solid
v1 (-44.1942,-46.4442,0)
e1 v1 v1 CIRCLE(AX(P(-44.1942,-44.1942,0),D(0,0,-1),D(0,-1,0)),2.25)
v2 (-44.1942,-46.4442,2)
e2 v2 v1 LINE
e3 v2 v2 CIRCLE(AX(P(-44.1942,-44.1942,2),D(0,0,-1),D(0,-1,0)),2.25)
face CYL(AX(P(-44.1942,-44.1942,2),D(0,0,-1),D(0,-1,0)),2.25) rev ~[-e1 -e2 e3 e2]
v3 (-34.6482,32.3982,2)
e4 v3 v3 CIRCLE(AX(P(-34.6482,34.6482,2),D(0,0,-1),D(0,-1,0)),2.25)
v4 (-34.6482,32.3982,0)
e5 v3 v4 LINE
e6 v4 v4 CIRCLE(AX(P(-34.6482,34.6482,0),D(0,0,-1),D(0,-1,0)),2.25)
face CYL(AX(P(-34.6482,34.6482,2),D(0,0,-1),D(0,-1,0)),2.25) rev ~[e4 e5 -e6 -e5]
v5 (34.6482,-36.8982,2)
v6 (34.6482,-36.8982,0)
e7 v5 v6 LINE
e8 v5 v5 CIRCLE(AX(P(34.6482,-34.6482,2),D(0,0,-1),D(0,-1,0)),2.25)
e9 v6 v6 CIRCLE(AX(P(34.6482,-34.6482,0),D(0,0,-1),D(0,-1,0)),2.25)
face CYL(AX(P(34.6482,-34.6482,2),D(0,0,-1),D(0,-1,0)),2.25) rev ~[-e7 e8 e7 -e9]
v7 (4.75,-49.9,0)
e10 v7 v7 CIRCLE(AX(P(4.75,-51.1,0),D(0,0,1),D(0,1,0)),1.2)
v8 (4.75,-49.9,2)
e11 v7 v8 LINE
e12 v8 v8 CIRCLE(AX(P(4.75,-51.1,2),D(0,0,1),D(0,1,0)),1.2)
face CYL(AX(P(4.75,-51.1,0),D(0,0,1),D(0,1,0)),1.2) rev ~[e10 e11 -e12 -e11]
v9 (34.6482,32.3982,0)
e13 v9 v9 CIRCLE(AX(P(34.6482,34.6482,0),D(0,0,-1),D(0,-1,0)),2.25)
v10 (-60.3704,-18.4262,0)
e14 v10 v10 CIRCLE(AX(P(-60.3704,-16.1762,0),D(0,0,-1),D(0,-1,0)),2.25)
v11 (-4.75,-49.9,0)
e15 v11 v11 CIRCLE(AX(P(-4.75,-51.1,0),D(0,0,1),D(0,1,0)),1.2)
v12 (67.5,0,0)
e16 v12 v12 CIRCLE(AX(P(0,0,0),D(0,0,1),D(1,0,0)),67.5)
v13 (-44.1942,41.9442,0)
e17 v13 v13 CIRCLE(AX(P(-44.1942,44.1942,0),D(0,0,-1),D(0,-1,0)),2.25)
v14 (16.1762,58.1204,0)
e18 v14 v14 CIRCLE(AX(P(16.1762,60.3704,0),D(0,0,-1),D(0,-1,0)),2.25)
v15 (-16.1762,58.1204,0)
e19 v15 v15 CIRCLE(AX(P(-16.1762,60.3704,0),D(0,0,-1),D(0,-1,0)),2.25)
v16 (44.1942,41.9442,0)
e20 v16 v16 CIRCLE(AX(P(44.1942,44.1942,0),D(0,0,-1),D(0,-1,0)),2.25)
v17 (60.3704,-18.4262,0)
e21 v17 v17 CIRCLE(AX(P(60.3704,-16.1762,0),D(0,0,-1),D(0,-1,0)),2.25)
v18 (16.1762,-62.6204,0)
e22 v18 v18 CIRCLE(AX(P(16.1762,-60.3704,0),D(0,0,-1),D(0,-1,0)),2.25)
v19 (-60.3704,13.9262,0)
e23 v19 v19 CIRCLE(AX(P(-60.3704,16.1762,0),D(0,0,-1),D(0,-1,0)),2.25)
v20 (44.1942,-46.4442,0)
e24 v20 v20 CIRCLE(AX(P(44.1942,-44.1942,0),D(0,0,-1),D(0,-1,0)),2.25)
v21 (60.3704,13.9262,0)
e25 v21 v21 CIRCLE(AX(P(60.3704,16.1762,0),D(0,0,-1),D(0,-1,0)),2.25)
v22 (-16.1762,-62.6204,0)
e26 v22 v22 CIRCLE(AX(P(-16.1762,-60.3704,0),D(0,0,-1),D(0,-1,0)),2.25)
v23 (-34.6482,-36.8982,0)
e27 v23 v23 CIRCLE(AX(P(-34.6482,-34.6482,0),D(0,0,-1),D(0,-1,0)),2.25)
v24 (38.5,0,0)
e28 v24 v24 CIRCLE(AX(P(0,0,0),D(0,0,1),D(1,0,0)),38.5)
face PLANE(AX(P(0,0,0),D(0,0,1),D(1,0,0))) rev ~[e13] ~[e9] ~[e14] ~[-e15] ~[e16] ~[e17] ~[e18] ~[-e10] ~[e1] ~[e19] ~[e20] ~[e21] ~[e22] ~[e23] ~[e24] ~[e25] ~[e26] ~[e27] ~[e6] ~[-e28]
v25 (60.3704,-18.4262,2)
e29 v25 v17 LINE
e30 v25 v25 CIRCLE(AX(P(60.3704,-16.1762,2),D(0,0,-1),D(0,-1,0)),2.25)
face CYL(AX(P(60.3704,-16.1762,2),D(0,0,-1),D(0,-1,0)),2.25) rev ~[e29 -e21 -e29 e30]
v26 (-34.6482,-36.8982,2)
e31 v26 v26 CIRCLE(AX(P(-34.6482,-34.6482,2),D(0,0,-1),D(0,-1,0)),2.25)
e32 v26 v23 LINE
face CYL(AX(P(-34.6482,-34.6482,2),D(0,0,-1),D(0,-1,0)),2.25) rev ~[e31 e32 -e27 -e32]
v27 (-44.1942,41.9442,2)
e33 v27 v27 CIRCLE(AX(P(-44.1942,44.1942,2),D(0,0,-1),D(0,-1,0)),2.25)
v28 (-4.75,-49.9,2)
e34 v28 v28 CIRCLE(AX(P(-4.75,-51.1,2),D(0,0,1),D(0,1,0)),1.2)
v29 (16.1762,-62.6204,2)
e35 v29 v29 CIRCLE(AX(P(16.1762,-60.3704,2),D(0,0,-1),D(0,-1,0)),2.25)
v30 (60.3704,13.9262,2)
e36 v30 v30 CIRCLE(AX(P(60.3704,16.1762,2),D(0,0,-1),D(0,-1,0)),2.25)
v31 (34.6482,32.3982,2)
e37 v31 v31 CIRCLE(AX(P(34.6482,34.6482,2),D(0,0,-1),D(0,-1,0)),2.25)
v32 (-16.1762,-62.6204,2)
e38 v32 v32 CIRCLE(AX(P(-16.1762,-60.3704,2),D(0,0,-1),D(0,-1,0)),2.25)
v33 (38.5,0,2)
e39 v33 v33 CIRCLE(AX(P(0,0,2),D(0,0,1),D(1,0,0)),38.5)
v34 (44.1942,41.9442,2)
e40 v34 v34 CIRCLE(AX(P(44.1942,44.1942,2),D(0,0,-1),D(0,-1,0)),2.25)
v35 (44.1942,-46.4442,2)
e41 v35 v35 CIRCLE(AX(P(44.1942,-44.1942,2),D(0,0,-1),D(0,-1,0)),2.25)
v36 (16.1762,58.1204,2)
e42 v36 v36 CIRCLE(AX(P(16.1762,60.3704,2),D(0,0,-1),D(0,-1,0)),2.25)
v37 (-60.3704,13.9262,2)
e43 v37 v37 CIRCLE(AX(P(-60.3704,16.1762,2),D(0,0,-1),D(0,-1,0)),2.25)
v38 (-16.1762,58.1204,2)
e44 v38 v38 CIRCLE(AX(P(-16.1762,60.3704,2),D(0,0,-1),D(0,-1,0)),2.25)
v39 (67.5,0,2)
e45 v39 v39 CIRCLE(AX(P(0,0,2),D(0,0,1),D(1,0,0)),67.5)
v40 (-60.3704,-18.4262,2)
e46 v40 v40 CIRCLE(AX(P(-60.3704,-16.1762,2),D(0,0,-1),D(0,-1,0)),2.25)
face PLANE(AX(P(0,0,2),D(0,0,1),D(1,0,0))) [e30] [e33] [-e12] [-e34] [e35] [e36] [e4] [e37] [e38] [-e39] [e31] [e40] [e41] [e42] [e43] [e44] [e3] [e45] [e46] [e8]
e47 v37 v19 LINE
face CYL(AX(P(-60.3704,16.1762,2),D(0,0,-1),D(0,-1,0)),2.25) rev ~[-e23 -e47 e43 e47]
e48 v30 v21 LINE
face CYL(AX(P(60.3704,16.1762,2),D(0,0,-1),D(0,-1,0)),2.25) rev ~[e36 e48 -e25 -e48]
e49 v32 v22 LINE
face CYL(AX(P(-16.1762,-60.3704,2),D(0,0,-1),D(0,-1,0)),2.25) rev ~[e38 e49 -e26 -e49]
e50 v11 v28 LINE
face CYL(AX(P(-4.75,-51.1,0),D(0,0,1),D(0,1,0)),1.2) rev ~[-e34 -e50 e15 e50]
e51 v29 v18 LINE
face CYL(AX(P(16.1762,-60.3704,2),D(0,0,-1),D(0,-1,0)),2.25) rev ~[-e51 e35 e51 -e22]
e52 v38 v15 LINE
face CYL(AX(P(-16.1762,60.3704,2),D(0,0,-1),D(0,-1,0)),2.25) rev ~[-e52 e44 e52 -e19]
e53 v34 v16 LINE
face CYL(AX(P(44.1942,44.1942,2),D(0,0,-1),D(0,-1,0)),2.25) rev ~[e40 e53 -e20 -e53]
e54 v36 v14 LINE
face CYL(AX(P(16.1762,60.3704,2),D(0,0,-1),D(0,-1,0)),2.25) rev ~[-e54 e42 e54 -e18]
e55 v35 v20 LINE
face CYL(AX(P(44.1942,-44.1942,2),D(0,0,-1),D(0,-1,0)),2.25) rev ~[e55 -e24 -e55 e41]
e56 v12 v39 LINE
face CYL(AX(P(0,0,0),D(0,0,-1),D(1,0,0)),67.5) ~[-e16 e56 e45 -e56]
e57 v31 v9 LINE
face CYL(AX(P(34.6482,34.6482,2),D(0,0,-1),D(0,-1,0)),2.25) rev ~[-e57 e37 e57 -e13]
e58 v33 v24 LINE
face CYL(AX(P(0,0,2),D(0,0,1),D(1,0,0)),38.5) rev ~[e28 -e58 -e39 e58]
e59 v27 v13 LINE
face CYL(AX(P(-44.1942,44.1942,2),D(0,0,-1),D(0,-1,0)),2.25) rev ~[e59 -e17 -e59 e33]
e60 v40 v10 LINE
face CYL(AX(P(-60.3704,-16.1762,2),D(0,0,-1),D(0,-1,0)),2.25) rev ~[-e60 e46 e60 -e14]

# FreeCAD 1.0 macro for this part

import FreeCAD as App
import Part
import Sketcher
from FreeCAD import Vector
Q = App.Units.Quantity

doc = App.newDocument("Part")
body = doc.addObject("PartDesign::Body", "Body")

# Sketch on XY plane
sketch1 = body.newObject("Sketcher::SketchObject", "Sketch")
sketch1.AttachmentSupport = (doc.getObject("XY_Plane"), [""])
sketch1.MapMode = "FlatFace"
sketch1.addGeometry(Part.Circle(Vector(0, 0, 0), Vector(0, 0, 1), 67.5), False)
sketch1.addConstraint([
    Sketcher.Constraint("Coincident", 0, 3, -1, 1),
    Sketcher.Constraint("Diameter", 0, Q("135 mm")),
])
pad1 = body.newObject("PartDesign::Pad", "Pad")
pad1.Profile = sketch1
pad1.Length = 2

# Sketch on XY plane
sketch2 = body.newObject("Sketcher::SketchObject", "Sketch001")
sketch2.AttachmentSupport = (doc.getObject("XY_Plane"), [""])
sketch2.MapMode = "FlatFace"
sketch2.AttachmentOffset = App.Placement(Vector(0, 0, 2), App.Rotation())
sketch2.addGeometry(Part.Circle(Vector(0, 0, 0), Vector(0, 0, 1), 38.5), False)
sketch2.addConstraint([
    Sketcher.Constraint("Coincident", 0, 3, -1, 1),
    Sketcher.Constraint("Diameter", 0, Q("77 mm")),
])
pocket1 = body.newObject("PartDesign::Pocket", "Pocket")
pocket1.Profile = sketch2
pocket1.Type = "ThroughAll"

# Sketch on XY plane
sketch3 = body.newObject("Sketcher::SketchObject", "Sketch002")
sketch3.AttachmentSupport = (doc.getObject("XY_Plane"), [""])
sketch3.MapMode = "FlatFace"
sketch3.AttachmentOffset = App.Placement(Vector(0, 0, 2), App.Rotation())
sketch3.addGeometry([
    Part.Circle(Vector(16.1762, 60.3704, 0), Vector(0, 0, 1), 2.25),  # 0
    Part.Circle(Vector(-16.1762, 60.3704, 0), Vector(0, 0, 1), 2.25),  # 1
    Part.Circle(Vector(-44.1942, 44.1942, 0), Vector(0, 0, 1), 2.25),  # 2
    Part.Circle(Vector(-60.3704, 16.1762, 0), Vector(0, 0, 1), 2.25),  # 3
    Part.Circle(Vector(-60.3704, -16.1762, 0), Vector(0, 0, 1), 2.25),  # 4
    Part.Circle(Vector(-44.1942, -44.1942, 0), Vector(0, 0, 1), 2.25),  # 5
    Part.Circle(Vector(-16.1762, -60.3704, 0), Vector(0, 0, 1), 2.25),  # 6
    Part.Circle(Vector(16.1762, -60.3704, 0), Vector(0, 0, 1), 2.25),  # 7
    Part.Circle(Vector(44.1942, -44.1942, 0), Vector(0, 0, 1), 2.25),  # 8
    Part.Circle(Vector(60.3704, -16.1762, 0), Vector(0, 0, 1), 2.25),  # 9
    Part.Circle(Vector(60.3704, 16.1762, 0), Vector(0, 0, 1), 2.25),  # 10
    Part.Circle(Vector(44.1942, 44.1942, 0), Vector(0, 0, 1), 2.25),  # 11
], False)
sketch3.addConstraint([
    Sketcher.Constraint("Equal", 0, 1),
    Sketcher.Constraint("Equal", 1, 2),
    Sketcher.Constraint("Equal", 2, 3),
    Sketcher.Constraint("Equal", 3, 4),
    Sketcher.Constraint("Equal", 4, 5),
    Sketcher.Constraint("Equal", 5, 6),
    Sketcher.Constraint("Equal", 6, 7),
    Sketcher.Constraint("Equal", 7, 8),
    Sketcher.Constraint("Equal", 8, 9),
    Sketcher.Constraint("Equal", 9, 10),
    Sketcher.Constraint("Equal", 10, 11),
    Sketcher.Constraint("Symmetric", 0, 3, 6, 3, -1, 1),
    Sketcher.Constraint("Symmetric", 1, 3, 7, 3, -1, 1),
    Sketcher.Constraint("Symmetric", 2, 3, 8, 3, -1, 1),
    Sketcher.Constraint("Symmetric", 3, 3, 9, 3, -1, 1),
    Sketcher.Constraint("Symmetric", 4, 3, 10, 3, -1, 1),
    Sketcher.Constraint("Symmetric", 5, 3, 11, 3, -1, 1),
    Sketcher.Constraint("Symmetric", 0, 3, 1, 3, -2),
    Sketcher.Constraint("Symmetric", 5, 3, 8, 3, -2),
    Sketcher.Constraint("Symmetric", 4, 3, 9, 3, -2),
    Sketcher.Constraint("Diameter", 0, Q("4.5 mm")),
    Sketcher.Constraint("DistanceX", 2, 3, 1, 3, Q("28.018 mm")),
    Sketcher.Constraint("DistanceY", 3, 3, 2, 3, Q("28.018 mm")),
    Sketcher.Constraint("DistanceX", -1, 1, 0, 3, Q("16.1762 mm")),
    Sketcher.Constraint("DistanceY", -1, 1, 0, 3, Q("60.3704 mm")),
    Sketcher.Constraint("DistanceY", -1, 1, 2, 3, Q("44.1942 mm")),
    Sketcher.Constraint("DistanceX", 3, 3, -1, 1, Q("60.3704 mm")),
])
doc.recompute()
hole = body.newObject("PartDesign::Hole", "Hole")
hole.Profile = sketch3
hole.ThreadType = "None"
hole.Diameter = 4.5
hole.DepthType = "ThroughAll"

# Sketch on XY plane
sketch4 = body.newObject("Sketcher::SketchObject", "Sketch003")
sketch4.AttachmentSupport = (doc.getObject("XY_Plane"), [""])
sketch4.MapMode = "FlatFace"
sketch4.AttachmentOffset = App.Placement(Vector(0, 0, 2), App.Rotation())
sketch4.addGeometry([
    Part.Circle(Vector(-34.6482, 34.6482, 0), Vector(0, 0, 1), 2.25),
    Part.Circle(Vector(-34.6482, -34.6482, 0), Vector(0, 0, 1), 2.25),
    Part.Circle(Vector(34.6482, -34.6482, 0), Vector(0, 0, 1), 2.25),
    Part.Circle(Vector(34.6482, 34.6482, 0), Vector(0, 0, 1), 2.25),
], False)
sketch4.addConstraint([
    Sketcher.Constraint("Equal", 0, 1),
    Sketcher.Constraint("Equal", 1, 2),
    Sketcher.Constraint("Equal", 2, 3),
    Sketcher.Constraint("Symmetric", 0, 3, 2, 3, -1, 1),
    Sketcher.Constraint("Symmetric", 1, 3, 3, 3, -1, 1),
    Sketcher.Constraint("Symmetric", 1, 3, 2, 3, -2),
    Sketcher.Constraint("Diameter", 0, Q("4.5 mm")),
    Sketcher.Constraint("DistanceX", 0, 3, -1, 1, Q("34.6482 mm")),
    Sketcher.Constraint("DistanceY", -1, 1, 0, 3, Q("34.6482 mm")),
])
doc.recompute()
hole2 = body.newObject("PartDesign::Hole", "Hole001")
hole2.Profile = sketch4
hole2.ThreadType = "None"
hole2.Diameter = 4.5
hole2.DepthType = "ThroughAll"

# Sketch on XY plane
sketch5 = body.newObject("Sketcher::SketchObject", "Sketch004")
sketch5.AttachmentSupport = (doc.getObject("XY_Plane"), [""])
sketch5.MapMode = "FlatFace"
sketch5.addGeometry([
    Part.Circle(Vector(4.75, -51.1, 0), Vector(0, 0, 1), 1.2),
    Part.Circle(Vector(-4.75, -51.1, 0), Vector(0, 0, 1), 1.2),
], False)
sketch5.addConstraint([
    Sketcher.Constraint("Equal", 0, 1),
    Sketcher.Constraint("Symmetric", 0, 3, 1, 3, -2),
    Sketcher.Constraint("Diameter", 0, Q("2.4 mm")),
    Sketcher.Constraint("DistanceY", 0, 3, -1, 1, Q("51.1 mm")),
    Sketcher.Constraint("DistanceX", 1, 3, 0, 3, Q("9.5 mm")),
])
doc.recompute()
hole3 = body.newObject("PartDesign::Hole", "Hole002")
hole3.Profile = sketch5
hole3.ThreadType = "None"
hole3.Diameter = 2.4
hole3.DepthType = "ThroughAll"
hole3.Reversed = True

doc.recompute()
